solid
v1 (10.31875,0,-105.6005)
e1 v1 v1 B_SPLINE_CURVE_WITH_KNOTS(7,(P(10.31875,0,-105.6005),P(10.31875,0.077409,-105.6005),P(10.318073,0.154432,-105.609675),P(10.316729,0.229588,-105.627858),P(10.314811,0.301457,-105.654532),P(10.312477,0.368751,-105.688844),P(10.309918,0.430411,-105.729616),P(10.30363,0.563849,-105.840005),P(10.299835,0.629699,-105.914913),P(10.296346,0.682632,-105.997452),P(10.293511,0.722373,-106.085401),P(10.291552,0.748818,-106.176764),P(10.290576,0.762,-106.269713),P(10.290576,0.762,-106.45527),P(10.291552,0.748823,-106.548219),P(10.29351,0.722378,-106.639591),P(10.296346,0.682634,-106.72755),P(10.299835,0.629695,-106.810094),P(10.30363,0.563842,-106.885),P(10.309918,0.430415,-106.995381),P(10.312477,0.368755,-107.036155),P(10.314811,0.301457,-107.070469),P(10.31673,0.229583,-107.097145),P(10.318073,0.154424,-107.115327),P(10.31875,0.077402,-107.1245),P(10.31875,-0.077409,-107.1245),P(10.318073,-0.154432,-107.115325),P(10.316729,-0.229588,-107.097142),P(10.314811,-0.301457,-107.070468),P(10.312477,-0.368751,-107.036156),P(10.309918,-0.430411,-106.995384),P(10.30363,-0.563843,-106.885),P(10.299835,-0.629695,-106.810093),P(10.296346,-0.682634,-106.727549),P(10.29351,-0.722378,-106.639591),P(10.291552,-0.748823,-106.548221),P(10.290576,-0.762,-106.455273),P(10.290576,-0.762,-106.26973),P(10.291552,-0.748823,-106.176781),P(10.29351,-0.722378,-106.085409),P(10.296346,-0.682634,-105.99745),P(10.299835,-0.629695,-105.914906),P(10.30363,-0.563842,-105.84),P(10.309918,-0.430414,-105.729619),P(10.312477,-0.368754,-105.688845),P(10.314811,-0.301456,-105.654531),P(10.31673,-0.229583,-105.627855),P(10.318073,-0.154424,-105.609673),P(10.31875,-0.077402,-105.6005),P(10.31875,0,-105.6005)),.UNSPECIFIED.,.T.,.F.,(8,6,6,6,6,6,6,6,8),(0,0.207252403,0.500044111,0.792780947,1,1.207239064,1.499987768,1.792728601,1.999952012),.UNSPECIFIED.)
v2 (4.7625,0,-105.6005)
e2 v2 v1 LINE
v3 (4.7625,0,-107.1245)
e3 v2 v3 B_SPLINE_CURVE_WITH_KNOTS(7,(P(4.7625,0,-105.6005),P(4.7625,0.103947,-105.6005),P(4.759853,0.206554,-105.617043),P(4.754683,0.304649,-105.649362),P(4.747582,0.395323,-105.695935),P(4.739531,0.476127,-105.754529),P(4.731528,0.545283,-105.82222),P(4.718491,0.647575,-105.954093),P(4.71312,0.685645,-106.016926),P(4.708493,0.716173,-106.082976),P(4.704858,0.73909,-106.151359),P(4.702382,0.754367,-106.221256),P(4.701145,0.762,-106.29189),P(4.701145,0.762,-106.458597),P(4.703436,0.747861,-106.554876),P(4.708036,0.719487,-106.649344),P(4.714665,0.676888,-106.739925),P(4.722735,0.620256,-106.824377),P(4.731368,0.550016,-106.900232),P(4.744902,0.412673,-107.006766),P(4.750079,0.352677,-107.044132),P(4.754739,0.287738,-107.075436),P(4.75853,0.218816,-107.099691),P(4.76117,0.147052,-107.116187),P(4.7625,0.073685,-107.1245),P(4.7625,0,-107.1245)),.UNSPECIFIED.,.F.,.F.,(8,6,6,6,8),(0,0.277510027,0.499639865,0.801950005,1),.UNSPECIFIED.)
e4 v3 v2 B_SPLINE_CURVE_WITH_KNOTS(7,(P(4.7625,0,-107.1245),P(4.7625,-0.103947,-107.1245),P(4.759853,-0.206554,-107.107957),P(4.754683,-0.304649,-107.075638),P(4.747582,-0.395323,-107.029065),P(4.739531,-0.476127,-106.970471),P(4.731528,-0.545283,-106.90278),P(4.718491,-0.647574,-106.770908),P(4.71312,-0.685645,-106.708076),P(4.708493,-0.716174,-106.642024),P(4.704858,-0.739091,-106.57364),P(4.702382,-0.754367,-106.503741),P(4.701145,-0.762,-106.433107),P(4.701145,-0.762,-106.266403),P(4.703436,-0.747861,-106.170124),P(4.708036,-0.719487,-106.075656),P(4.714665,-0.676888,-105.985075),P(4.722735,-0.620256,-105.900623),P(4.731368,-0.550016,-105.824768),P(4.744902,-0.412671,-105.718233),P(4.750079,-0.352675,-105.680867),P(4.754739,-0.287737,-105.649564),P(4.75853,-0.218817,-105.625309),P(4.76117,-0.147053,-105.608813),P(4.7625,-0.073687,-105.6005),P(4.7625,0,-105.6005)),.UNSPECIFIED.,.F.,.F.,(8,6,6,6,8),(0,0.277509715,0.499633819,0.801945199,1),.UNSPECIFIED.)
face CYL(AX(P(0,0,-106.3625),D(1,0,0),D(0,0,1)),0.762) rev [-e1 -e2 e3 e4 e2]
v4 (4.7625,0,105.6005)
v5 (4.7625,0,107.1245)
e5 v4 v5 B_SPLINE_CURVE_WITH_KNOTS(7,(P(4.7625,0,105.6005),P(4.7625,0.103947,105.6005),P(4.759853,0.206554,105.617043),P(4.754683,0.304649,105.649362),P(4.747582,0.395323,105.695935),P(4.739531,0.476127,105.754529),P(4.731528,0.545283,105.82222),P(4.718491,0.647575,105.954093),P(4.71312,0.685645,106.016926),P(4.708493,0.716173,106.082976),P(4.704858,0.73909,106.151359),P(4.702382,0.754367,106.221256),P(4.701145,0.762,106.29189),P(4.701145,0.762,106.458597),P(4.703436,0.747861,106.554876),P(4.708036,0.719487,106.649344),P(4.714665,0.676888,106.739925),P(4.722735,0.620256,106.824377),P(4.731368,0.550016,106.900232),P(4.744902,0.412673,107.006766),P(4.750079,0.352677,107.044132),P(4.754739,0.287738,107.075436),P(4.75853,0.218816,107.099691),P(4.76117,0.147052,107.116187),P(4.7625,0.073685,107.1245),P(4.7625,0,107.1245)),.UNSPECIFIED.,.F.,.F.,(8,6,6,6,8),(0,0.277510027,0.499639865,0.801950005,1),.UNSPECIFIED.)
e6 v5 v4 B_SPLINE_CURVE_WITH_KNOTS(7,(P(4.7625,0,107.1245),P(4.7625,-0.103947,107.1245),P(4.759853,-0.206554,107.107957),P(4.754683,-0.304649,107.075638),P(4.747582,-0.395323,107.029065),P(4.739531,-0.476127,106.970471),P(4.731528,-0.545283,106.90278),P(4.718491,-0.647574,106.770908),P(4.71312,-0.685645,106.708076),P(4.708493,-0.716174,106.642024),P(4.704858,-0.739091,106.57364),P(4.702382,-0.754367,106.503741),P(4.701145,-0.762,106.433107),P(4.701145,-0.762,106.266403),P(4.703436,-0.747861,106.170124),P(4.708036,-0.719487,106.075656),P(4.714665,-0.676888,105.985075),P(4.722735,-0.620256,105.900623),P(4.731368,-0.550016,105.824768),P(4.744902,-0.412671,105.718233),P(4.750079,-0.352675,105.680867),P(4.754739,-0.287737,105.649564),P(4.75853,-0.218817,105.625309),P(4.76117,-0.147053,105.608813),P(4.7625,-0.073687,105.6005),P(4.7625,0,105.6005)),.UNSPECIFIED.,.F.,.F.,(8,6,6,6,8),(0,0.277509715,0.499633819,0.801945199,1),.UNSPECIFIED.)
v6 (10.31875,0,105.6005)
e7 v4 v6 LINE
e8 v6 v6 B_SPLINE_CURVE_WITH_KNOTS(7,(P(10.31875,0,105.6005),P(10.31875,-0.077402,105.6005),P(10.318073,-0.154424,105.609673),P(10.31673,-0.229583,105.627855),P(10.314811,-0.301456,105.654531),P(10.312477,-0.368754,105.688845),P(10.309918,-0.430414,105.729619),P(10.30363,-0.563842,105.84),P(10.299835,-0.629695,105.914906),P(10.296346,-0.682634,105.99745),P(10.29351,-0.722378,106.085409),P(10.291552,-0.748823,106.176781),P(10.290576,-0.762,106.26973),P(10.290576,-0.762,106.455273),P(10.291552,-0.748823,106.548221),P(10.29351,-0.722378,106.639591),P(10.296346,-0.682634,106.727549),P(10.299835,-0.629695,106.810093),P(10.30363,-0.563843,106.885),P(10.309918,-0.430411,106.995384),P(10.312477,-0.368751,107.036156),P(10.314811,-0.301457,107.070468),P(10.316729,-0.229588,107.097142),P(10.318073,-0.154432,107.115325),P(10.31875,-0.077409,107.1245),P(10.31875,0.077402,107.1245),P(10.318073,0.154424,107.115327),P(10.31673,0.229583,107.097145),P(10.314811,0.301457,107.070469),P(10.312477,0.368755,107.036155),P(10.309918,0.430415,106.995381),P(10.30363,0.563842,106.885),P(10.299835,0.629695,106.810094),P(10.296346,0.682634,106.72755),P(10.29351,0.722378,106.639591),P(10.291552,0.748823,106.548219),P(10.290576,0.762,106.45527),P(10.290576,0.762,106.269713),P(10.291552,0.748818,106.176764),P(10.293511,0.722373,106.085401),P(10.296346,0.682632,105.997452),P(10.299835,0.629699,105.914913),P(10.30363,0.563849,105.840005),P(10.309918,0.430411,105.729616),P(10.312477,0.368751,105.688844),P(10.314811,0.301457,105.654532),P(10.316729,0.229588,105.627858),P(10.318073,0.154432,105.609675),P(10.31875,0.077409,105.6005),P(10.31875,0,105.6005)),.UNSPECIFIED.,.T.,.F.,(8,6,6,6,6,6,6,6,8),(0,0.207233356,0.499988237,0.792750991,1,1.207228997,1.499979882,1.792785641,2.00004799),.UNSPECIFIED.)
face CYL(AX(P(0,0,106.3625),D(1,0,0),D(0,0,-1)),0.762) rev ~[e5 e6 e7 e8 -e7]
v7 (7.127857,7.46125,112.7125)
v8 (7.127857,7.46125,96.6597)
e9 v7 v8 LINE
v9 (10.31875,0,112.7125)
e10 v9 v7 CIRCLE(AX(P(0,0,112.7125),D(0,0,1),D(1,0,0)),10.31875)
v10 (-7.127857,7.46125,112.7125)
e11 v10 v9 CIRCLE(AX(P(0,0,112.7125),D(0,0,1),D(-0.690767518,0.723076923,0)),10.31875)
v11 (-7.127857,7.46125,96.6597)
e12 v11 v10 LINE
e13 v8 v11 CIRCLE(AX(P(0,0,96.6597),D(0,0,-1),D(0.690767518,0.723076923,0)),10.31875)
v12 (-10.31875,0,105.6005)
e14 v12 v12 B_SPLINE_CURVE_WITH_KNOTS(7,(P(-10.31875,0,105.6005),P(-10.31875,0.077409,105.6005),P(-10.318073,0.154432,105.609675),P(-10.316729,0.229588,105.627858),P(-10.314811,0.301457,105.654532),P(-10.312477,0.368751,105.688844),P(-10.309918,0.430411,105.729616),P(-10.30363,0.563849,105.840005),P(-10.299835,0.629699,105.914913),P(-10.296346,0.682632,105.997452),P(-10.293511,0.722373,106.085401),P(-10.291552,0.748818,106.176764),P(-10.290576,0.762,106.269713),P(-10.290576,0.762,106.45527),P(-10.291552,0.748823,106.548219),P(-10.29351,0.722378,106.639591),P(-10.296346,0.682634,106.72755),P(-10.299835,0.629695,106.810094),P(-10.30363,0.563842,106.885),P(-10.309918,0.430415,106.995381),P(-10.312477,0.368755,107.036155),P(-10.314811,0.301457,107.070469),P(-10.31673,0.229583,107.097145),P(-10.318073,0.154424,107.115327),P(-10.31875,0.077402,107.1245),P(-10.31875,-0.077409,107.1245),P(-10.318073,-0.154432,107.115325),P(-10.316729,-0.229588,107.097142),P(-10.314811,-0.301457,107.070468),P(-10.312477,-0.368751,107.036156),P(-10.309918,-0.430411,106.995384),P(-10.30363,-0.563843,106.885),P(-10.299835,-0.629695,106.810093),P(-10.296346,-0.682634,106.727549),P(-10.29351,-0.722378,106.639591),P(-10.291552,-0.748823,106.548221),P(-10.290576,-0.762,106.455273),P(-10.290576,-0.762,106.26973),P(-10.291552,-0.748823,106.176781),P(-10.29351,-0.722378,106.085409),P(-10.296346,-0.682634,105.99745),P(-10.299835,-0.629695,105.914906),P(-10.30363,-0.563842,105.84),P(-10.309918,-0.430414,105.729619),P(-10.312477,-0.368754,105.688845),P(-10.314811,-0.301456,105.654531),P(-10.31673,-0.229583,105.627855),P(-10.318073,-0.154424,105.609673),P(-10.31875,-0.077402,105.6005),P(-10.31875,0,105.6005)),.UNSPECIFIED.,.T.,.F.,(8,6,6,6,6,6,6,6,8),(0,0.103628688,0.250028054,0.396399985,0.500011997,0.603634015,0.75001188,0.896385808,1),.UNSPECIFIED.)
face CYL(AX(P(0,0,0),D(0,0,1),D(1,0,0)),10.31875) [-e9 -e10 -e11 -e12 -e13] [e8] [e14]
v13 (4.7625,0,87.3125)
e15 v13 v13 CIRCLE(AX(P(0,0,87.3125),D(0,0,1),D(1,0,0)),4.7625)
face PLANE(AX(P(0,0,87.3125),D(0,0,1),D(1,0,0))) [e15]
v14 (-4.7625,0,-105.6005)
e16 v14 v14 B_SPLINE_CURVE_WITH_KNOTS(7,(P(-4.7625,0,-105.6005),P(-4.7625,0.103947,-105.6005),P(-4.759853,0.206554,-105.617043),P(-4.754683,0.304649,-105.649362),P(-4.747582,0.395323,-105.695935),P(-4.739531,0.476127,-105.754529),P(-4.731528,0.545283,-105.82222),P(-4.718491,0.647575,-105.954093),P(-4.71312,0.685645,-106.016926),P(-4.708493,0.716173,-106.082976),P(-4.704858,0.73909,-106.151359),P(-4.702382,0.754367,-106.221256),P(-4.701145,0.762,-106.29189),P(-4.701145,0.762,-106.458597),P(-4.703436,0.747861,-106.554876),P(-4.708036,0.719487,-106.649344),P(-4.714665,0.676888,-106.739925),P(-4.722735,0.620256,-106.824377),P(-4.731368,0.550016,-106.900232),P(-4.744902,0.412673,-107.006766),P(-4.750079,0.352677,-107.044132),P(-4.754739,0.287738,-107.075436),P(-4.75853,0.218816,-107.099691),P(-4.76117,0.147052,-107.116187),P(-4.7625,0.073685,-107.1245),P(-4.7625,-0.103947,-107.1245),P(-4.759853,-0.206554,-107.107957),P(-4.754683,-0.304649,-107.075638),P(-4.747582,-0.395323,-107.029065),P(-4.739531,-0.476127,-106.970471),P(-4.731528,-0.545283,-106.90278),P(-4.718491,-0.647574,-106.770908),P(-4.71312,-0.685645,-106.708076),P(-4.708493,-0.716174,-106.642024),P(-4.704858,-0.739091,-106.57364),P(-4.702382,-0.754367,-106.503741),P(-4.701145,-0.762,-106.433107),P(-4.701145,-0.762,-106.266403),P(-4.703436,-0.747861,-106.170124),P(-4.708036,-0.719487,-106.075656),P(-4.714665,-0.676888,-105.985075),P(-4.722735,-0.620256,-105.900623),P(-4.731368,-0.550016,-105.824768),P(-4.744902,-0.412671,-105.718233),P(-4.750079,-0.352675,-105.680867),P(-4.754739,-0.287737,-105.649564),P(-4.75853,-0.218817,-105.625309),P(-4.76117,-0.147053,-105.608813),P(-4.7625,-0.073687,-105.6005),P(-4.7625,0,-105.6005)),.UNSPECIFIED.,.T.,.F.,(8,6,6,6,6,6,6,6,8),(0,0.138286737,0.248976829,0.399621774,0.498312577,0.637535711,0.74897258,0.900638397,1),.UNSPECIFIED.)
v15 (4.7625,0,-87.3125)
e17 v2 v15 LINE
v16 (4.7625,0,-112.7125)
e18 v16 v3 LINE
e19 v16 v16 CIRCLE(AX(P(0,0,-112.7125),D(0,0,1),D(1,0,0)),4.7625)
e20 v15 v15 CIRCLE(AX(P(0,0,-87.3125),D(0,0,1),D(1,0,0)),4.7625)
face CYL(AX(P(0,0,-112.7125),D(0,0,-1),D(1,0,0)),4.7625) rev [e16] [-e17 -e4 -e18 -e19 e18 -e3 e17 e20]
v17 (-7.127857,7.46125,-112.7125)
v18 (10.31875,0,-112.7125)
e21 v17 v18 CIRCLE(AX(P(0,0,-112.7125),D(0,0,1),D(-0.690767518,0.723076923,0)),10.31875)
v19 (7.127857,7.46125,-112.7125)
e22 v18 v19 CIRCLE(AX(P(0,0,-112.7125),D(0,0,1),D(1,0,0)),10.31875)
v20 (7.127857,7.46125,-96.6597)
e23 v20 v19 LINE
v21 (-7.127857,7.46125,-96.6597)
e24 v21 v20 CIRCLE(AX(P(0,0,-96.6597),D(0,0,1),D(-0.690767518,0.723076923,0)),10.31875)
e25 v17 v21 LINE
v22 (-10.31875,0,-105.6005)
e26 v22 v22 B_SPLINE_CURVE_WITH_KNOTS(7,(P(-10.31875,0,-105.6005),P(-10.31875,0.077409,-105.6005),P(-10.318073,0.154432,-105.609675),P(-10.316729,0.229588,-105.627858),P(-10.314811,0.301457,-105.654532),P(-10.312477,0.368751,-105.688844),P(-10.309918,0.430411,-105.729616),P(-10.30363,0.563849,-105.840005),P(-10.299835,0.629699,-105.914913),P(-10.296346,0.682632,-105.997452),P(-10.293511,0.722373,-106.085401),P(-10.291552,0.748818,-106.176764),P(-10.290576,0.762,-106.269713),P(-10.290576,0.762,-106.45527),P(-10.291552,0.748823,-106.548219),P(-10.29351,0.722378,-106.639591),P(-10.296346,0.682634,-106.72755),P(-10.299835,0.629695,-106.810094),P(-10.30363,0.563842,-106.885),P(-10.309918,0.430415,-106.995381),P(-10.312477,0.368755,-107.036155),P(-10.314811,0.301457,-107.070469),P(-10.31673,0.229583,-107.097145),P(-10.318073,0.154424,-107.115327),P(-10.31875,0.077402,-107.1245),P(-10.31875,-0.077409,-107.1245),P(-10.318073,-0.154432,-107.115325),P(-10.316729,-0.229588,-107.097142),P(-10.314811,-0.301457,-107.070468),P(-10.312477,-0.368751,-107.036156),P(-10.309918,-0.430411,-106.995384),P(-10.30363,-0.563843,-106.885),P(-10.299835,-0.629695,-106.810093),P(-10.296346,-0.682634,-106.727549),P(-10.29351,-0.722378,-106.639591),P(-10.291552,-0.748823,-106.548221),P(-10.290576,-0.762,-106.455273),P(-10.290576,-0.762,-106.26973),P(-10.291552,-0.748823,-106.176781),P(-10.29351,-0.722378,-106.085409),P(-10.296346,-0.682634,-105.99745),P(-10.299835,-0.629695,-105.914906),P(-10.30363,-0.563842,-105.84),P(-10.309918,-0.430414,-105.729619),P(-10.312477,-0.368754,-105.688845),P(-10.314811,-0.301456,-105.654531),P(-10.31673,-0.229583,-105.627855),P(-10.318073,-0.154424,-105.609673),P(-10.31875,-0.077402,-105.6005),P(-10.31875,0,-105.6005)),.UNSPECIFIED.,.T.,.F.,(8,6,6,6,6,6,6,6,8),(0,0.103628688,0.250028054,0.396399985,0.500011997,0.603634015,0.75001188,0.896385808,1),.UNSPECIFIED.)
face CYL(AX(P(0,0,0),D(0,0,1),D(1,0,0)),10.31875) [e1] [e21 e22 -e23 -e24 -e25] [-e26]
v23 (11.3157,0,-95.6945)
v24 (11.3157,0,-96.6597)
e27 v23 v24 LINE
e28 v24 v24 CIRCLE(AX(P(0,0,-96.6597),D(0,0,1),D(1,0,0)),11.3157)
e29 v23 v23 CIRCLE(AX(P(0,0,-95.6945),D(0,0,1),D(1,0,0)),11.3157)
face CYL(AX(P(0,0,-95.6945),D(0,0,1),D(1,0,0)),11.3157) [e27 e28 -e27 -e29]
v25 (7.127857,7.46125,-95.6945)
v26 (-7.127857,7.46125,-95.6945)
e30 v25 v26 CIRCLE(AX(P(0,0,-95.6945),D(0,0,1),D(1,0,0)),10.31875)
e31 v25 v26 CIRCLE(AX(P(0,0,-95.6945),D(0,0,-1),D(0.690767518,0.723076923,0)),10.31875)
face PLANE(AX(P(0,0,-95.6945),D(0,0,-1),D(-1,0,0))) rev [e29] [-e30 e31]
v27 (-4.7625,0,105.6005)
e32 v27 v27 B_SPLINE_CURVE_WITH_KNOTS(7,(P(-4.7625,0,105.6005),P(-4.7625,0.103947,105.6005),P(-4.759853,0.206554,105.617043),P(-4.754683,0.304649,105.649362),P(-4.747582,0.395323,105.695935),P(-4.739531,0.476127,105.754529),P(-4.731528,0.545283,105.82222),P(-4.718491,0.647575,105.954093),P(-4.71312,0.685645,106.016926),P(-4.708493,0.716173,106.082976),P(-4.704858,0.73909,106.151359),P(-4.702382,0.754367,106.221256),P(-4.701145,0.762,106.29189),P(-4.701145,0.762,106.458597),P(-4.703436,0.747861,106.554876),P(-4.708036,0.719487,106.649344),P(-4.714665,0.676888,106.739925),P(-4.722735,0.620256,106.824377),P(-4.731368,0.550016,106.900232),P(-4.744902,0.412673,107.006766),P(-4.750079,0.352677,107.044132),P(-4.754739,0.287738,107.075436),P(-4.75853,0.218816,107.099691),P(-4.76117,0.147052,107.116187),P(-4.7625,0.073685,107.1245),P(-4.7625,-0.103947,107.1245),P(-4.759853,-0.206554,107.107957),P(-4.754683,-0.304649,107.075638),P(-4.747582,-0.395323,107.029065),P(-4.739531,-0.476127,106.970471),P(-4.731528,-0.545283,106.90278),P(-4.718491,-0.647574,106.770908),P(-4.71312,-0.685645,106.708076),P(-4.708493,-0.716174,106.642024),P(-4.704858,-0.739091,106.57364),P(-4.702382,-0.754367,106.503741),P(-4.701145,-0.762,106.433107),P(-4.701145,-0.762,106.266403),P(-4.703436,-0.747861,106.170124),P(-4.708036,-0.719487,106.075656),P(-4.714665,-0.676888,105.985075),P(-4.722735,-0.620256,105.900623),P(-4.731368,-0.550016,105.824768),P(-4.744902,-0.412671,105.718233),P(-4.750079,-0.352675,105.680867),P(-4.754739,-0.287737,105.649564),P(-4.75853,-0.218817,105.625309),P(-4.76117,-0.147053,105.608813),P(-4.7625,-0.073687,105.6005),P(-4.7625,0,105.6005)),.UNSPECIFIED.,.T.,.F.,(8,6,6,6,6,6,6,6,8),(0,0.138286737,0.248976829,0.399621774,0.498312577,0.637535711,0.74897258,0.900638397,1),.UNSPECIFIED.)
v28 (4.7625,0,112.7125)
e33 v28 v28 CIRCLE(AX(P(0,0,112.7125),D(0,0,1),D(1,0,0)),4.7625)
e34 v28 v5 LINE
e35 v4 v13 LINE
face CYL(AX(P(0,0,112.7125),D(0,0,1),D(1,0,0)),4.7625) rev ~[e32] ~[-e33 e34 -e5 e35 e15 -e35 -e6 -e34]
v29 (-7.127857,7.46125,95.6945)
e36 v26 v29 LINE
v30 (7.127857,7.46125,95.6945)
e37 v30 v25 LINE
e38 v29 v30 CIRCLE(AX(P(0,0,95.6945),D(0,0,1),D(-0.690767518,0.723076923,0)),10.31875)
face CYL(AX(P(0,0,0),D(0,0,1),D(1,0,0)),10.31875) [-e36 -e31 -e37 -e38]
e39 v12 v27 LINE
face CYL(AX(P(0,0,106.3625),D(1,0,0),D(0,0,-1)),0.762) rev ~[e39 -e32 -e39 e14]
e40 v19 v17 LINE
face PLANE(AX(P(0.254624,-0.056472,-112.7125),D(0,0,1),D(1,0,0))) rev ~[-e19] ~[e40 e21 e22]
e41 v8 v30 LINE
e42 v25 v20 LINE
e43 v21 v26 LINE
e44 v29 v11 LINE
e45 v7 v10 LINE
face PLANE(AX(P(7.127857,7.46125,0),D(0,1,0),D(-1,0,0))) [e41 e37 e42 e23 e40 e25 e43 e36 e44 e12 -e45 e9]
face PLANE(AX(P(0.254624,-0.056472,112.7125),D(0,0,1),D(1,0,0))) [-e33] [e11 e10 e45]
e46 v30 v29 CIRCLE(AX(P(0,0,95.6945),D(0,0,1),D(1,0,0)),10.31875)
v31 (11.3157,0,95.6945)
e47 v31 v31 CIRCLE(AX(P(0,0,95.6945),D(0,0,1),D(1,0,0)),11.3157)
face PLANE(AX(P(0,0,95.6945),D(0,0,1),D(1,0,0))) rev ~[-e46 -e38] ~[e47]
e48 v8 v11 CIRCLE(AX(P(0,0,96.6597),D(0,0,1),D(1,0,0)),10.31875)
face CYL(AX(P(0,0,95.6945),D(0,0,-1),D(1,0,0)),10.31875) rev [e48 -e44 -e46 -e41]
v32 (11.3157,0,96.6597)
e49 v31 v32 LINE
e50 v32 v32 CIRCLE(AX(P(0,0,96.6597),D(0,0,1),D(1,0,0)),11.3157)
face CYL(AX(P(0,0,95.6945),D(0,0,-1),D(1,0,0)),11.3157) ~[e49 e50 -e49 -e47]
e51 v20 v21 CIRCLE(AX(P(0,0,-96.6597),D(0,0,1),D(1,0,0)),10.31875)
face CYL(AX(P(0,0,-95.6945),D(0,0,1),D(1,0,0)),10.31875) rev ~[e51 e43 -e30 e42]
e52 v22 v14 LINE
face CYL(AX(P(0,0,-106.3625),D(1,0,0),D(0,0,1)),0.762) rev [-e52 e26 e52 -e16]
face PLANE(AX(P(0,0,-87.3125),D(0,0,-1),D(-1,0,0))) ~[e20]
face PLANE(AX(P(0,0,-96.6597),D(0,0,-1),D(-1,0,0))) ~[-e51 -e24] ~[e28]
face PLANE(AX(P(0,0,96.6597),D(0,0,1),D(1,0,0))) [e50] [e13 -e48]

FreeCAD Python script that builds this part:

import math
import FreeCAD as App
import Part
import Sketcher

V = App.Vector
Q = App.Units.Quantity

doc = App.newDocument("Part")
body = doc.addObject("PartDesign::Body", "Body")

sketch1 = body.newObject("Sketcher::SketchObject", "Sketch")
sketch1.AttachmentSupport = (doc.getObject("XY_Plane"), [""])
sketch1.MapMode = "FlatFace"
sketch1.addGeometry(Part.LineSegment(V(7, 7, 0), V(-7, 7, 0)), False)
sketch1.addGeometry(Part.ArcOfCircle(Part.Circle(V(0, 0, 0), V(0, 0, 1), 10), math.radians(134), math.radians(360)), False)
sketch1.addGeometry(Part.ArcOfCircle(Part.Circle(V(0, 0, 0), V(0, 0, 1), 10), math.radians(0), math.radians(46)), False)
sketch1.addConstraint(Sketcher.Constraint("Coincident", 0, 2, 1, 1))
sketch1.addConstraint(Sketcher.Constraint("Tangent", 1, 2, 2, 1))
sketch1.addConstraint(Sketcher.Constraint("Coincident", 2, 2, 0, 1))
sketch1.addConstraint(Sketcher.Constraint("Horizontal", 0))
sketch1.addConstraint(Sketcher.Constraint("Coincident", 1, 3, -1, 1))
sketch1.addConstraint(Sketcher.Constraint("Equal", 1, 2))
sketch1.addConstraint(Sketcher.Constraint("PointOnObject", 1, 2, -1))
sketch1.addConstraint(Sketcher.Constraint("Radius", 1, Q("0.40625 in")))
sketch1.addConstraint(Sketcher.Constraint("DistanceX", 0, 2, 0, 1, Q("14.255715 mm")))
pad1 = body.newObject("PartDesign::Pad", "Pad")
pad1.Profile = sketch1
pad1.Type = "TwoLengths"
pad1.Length = Q("4.4375 in")
pad1.Length2 = Q("4.4375 in")

sketch2 = body.newObject("Sketcher::SketchObject", "Sketch001")
sketch2.AttachmentSupport = (doc.getObject("XY_Plane"), [""])
sketch2.MapMode = "FlatFace"
sketch2.AttachmentOffset = App.Placement(V(0, 0, 4.4375 * 25.4), App.Rotation())
sketch2.addGeometry(Part.Circle(V(0, 0, 0), V(0, 0, 1), 4.8), False)
sketch2.addConstraint(Sketcher.Constraint("Coincident", 0, 3, -1, 1))
sketch2.addConstraint(Sketcher.Constraint("Diameter", 0, Q("0.375 in")))
pocket1 = body.newObject("PartDesign::Pocket", "Pocket")
pocket1.Profile = sketch2
pocket1.Length = Q("1 in")

sketch3 = body.newObject("Sketcher::SketchObject", "Sketch002")
sketch3.AttachmentSupport = (doc.getObject("XY_Plane"), [""])
sketch3.MapMode = "FlatFace"
sketch3.AttachmentOffset = App.Placement(V(0, 0, 3.7675 * 25.4), App.Rotation())
sketch3.addGeometry(Part.Circle(V(0, 0, 0), V(0, 0, 1), 11), False)
sketch3.addGeometry(Part.Circle(V(0, 0, 0), V(0, 0, 1), 10), False)
sketch3.addConstraint(Sketcher.Constraint("Coincident", 0, 3, -1, 1))
sketch3.addConstraint(Sketcher.Constraint("Coincident", 1, 3, -1, 1))
sketch3.addConstraint(Sketcher.Constraint("Diameter", 0, Q("0.891 in")))
sketch3.addConstraint(Sketcher.Constraint("Diameter", 1, Q("0.8125 in")))
pad2 = body.newObject("PartDesign::Pad", "Pad001")
pad2.Profile = sketch3
pad2.Length = Q("0.038 in")

sketch4 = body.newObject("Sketcher::SketchObject", "Sketch003")
sketch4.AttachmentSupport = (doc.getObject("YZ_Plane"), [""])
sketch4.MapMode = "FlatFace"
sketch4.addGeometry(Part.Circle(V(0, 106.4, 0), V(0, 0, 1), 0.8), False)
sketch4.addConstraint(Sketcher.Constraint("PointOnObject", 0, 3, -2))
sketch4.addConstraint(Sketcher.Constraint("Diameter", 0, Q("0.06 in")))
sketch4.addConstraint(Sketcher.Constraint("DistanceY", -1, 1, 0, 3, Q("4.1875 in")))
pocket2 = body.newObject("PartDesign::Pocket", "Pocket001")
pocket2.Profile = sketch4
pocket2.Length = 24.6314
pocket2.Midplane = True
doc.recompute()

mirrored = body.newObject("PartDesign::Mirrored", "Mirrored")
mirrored.Originals = [pocket1, pad2, pocket2]
mirrored.MirrorPlane = (doc.getObject("XY_Plane"), [""])
body.Tip = mirrored

doc.recompute()
